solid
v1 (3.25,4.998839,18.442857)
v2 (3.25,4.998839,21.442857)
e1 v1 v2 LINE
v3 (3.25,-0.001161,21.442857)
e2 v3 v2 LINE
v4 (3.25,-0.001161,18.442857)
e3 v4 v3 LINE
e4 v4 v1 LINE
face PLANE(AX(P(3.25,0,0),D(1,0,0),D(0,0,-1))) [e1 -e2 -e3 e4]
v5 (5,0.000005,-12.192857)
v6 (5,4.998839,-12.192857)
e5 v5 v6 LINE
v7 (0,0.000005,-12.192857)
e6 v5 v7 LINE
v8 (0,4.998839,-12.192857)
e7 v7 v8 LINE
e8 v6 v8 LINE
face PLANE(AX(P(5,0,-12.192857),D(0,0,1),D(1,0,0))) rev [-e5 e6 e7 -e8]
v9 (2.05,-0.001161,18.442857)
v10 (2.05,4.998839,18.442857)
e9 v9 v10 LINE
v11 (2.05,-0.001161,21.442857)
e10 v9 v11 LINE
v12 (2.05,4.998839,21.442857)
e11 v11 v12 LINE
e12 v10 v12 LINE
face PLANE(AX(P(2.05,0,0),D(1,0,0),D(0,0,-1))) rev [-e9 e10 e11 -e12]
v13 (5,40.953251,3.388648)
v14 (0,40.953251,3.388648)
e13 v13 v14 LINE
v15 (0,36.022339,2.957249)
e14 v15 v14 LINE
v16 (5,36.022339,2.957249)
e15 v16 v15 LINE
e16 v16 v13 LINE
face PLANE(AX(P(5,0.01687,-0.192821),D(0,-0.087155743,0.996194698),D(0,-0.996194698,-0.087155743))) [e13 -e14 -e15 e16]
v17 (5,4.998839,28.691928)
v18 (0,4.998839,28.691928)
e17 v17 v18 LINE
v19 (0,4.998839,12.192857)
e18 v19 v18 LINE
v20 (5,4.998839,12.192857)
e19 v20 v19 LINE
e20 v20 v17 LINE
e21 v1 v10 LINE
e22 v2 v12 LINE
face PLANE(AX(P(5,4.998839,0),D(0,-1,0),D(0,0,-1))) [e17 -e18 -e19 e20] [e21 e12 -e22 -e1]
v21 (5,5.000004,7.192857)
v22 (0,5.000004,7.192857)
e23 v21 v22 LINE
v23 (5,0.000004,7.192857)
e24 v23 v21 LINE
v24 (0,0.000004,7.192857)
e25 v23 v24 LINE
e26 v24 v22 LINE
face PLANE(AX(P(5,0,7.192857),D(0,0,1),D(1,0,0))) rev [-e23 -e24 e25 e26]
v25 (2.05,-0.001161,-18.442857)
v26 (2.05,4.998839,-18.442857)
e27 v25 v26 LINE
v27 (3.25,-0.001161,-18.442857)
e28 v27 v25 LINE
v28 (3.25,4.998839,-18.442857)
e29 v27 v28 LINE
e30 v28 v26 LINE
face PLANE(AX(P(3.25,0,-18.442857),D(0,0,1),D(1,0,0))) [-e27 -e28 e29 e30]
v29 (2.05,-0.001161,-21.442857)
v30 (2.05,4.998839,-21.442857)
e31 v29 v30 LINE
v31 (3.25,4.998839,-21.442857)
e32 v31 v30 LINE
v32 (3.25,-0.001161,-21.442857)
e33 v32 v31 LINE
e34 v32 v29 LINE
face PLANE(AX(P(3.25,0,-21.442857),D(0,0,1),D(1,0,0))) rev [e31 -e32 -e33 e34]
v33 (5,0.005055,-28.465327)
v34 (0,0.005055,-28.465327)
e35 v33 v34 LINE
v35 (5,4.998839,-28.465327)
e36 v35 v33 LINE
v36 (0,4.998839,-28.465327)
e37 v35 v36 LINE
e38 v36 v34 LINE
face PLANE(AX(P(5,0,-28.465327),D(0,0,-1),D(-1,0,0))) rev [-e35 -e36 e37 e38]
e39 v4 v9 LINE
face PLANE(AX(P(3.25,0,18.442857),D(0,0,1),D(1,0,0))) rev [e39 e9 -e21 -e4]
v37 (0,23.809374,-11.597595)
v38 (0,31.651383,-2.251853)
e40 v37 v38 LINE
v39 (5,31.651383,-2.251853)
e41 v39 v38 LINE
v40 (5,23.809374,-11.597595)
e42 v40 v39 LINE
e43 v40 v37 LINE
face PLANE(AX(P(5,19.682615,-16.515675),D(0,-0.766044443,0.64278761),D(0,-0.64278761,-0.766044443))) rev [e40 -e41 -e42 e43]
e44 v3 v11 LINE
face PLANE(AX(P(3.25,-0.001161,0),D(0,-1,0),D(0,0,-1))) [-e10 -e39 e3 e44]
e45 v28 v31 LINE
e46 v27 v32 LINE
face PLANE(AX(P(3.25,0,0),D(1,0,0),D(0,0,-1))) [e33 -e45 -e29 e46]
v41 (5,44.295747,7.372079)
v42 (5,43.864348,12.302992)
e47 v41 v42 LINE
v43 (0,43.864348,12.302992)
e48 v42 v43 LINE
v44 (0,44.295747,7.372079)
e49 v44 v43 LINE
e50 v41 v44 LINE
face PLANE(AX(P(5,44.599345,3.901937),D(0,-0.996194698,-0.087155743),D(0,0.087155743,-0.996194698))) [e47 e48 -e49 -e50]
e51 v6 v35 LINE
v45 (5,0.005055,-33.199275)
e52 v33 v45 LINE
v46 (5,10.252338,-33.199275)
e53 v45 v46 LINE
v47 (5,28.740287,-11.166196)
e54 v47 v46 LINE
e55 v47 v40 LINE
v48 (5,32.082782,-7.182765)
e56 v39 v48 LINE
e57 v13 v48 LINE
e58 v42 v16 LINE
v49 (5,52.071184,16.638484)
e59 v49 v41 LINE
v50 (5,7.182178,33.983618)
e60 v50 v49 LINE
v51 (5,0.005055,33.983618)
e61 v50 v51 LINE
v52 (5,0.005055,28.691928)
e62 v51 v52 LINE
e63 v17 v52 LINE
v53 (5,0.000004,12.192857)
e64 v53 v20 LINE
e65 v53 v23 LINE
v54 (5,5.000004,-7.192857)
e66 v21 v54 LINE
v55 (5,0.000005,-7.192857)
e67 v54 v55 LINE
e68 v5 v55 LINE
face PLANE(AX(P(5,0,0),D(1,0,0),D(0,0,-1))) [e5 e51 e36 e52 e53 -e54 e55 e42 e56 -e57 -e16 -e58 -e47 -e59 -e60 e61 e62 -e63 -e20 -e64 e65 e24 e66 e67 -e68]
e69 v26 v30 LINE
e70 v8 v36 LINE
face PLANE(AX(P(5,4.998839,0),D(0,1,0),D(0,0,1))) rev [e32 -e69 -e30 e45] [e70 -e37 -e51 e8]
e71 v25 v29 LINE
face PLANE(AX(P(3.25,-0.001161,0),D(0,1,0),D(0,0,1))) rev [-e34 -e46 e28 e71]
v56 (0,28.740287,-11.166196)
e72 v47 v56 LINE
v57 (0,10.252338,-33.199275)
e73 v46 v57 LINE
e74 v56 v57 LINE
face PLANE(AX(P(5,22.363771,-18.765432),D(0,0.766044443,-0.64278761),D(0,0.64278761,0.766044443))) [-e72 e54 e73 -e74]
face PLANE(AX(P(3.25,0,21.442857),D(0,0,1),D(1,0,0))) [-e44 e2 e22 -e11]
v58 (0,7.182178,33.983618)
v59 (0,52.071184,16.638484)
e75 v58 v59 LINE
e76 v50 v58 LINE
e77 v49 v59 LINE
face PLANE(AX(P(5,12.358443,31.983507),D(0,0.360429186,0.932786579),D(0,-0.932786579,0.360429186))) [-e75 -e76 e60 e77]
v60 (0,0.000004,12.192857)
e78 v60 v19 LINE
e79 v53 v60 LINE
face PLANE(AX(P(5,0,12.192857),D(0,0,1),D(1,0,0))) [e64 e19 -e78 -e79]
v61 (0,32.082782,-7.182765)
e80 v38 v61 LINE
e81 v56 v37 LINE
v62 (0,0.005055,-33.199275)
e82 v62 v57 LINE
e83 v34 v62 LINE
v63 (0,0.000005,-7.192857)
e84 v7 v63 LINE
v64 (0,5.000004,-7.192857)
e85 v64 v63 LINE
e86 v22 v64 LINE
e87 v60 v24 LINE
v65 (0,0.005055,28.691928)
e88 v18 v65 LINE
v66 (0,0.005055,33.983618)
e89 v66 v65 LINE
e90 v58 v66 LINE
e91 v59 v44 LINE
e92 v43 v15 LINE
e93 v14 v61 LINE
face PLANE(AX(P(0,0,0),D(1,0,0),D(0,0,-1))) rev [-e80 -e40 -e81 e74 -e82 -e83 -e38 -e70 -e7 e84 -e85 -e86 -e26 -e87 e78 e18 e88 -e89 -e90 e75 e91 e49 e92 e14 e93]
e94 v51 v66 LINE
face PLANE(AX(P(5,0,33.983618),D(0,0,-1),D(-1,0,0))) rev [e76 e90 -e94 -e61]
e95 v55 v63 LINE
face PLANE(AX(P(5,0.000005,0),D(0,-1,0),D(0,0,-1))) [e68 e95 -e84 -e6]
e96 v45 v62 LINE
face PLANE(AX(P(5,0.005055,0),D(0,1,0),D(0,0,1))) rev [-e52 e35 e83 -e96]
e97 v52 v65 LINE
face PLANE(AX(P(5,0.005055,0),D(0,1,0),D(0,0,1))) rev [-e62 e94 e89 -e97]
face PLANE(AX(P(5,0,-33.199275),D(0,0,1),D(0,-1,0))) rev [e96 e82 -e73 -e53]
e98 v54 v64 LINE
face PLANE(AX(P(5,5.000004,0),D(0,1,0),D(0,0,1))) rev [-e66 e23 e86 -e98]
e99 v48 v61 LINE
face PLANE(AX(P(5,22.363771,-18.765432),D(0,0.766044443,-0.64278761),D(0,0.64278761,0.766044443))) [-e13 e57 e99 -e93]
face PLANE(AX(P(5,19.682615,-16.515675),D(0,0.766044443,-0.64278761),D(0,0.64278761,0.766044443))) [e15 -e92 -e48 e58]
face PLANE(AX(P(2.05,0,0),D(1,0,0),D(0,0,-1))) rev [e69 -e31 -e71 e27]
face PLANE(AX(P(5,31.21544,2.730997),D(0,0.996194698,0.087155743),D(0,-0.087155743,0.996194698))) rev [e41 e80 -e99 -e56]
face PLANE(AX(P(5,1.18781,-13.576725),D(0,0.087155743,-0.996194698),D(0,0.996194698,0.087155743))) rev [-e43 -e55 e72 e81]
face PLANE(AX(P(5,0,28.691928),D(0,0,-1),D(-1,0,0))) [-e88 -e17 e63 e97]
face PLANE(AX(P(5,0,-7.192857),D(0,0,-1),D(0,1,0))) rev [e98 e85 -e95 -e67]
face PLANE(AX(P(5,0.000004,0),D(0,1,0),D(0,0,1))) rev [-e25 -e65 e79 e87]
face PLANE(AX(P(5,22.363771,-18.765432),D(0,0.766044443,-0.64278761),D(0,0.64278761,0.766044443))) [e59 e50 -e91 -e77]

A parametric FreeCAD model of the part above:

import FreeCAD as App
import Part
import Sketcher

V = App.Vector
Q = App.Units.Quantity

doc = App.newDocument("Part")
body = doc.addObject("PartDesign::Body", "Body")

# Sketch on YZ plane
sketch1 = doc.addObject("Sketcher::SketchObject", "Sketch")
body.addObject(sketch1)
sketch1.AttachmentSupport = (doc.YZ_Plane, [""])
sketch1.MapMode = "FlatFace"
sketch1.addGeometry([
    Part.LineSegment(V(0.000005, -7.192857, 0), V(0.000005, -12.192857, 0)),  # 0
    Part.LineSegment(V(0.000005, -12.192857, 0), V(4.998839, -12.192857, 0)),  # 1
    Part.LineSegment(V(4.998839, -12.192857, 0), V(4.998839, -28.465327, 0)),  # 2
    Part.LineSegment(V(4.998839, -28.465327, 0), V(0.005055, -28.465327, 0)),  # 3
    Part.LineSegment(V(0.005055, -28.465327, 0), V(0.005055, -33.199275, 0)),  # 4
    Part.LineSegment(V(0.005055, -33.199275, 0), V(10.252338, -33.199275, 0)),  # 5
    Part.LineSegment(V(10.252338, -33.199275, 0), V(23.045412, -17.953083, 0)),  # 6
    Part.LineSegment(V(23.045412, -17.953083, 0), V(25.629519, -14.873465, 0)),  # 7
    Part.LineSegment(V(25.629519, -14.873465, 0), V(28.740287, -11.166196, 0)),  # 8
    Part.LineSegment(V(28.740287, -11.166196, 0), V(23.809374, -11.597595, 0)),  # 9
    Part.LineSegment(V(23.809374, -11.597595, 0), V(31.651383, -2.251853, 0)),  # 10
    Part.LineSegment(V(31.651383, -2.251853, 0), V(32.082782, -7.182765, 0)),  # 11
    Part.LineSegment(V(32.082782, -7.182765, 0), V(40.953251, 3.388648, 0)),  # 12
    Part.LineSegment(V(40.953251, 3.388648, 0), V(36.022339, 2.957249, 0)),  # 13
    Part.LineSegment(V(36.022339, 2.957249, 0), V(43.864348, 12.302992, 0)),  # 14
    Part.LineSegment(V(43.864348, 12.302992, 0), V(44.295747, 7.372079, 0)),  # 15
    Part.LineSegment(V(44.295747, 7.372079, 0), V(52.071184, 16.638484, 0)),  # 16
    Part.LineSegment(V(52.071184, 16.638484, 0), V(10.005055, 32.892857, 0)),  # 17
    Part.LineSegment(V(10.005055, 32.892857, 0), V(7.182178, 33.983618, 0)),  # 18
    Part.LineSegment(V(7.182178, 33.983618, 0), V(0.005055, 33.983618, 0)),  # 19
    Part.LineSegment(V(0.005055, 33.983618, 0), V(0.005055, 28.691928, 0)),  # 20
    Part.LineSegment(V(0.005055, 28.691928, 0), V(4.998839, 28.691928, 0)),  # 21
    Part.LineSegment(V(4.998839, 28.691928, 0), V(4.998839, 12.192857, 0)),  # 22
    Part.LineSegment(V(4.998839, 12.192857, 0), V(0.000004, 12.192857, 0)),  # 23
    Part.LineSegment(V(0.000004, 12.192857, 0), V(0.000004, 7.192857, 0)),  # 24
    Part.LineSegment(V(0.000004, 7.192857, 0), V(5.000004, 7.192857, 0)),  # 25
    Part.LineSegment(V(5.000004, 7.192857, 0), V(5.000004, -7.192857, 0)),  # 26
    Part.LineSegment(V(5.000004, -7.192857, 0), V(0.000005, -7.192857, 0)),  # 27
], False)
sketch1.addConstraint([
    Sketcher.Constraint("Coincident", 0, 2, 1, 1),
    Sketcher.Constraint("Coincident", 1, 2, 2, 1),
    Sketcher.Constraint("Coincident", 2, 2, 3, 1),
    Sketcher.Constraint("Coincident", 3, 2, 4, 1),
    Sketcher.Constraint("Coincident", 4, 2, 5, 1),
    Sketcher.Constraint("Coincident", 5, 2, 6, 1),
    Sketcher.Constraint("Coincident", 6, 2, 7, 1),
    Sketcher.Constraint("Coincident", 7, 2, 8, 1),
    Sketcher.Constraint("Coincident", 8, 2, 9, 1),
    Sketcher.Constraint("Coincident", 9, 2, 10, 1),
    Sketcher.Constraint("Coincident", 10, 2, 11, 1),
    Sketcher.Constraint("Coincident", 11, 2, 12, 1),
    Sketcher.Constraint("Coincident", 12, 2, 13, 1),
    Sketcher.Constraint("Coincident", 13, 2, 14, 1),
    Sketcher.Constraint("Coincident", 14, 2, 15, 1),
    Sketcher.Constraint("Coincident", 15, 2, 16, 1),
    Sketcher.Constraint("Coincident", 16, 2, 17, 1),
    Sketcher.Constraint("Coincident", 17, 2, 18, 1),
    Sketcher.Constraint("Coincident", 18, 2, 19, 1),
    Sketcher.Constraint("Coincident", 19, 2, 20, 1),
    Sketcher.Constraint("Coincident", 20, 2, 21, 1),
    Sketcher.Constraint("Coincident", 21, 2, 22, 1),
    Sketcher.Constraint("Coincident", 22, 2, 23, 1),
    Sketcher.Constraint("Coincident", 23, 2, 24, 1),
    Sketcher.Constraint("Coincident", 24, 2, 25, 1),
    Sketcher.Constraint("Coincident", 25, 2, 26, 1),
    Sketcher.Constraint("Coincident", 26, 2, 27, 1),
    Sketcher.Constraint("Coincident", 27, 2, 0, 1),
    Sketcher.Constraint("Vertical", 0),
    Sketcher.Constraint("Horizontal", 1),
    Sketcher.Constraint("Vertical", 2),
    Sketcher.Constraint("Horizontal", 3),
    Sketcher.Constraint("Vertical", 4),
    Sketcher.Constraint("Horizontal", 5),
    Sketcher.Constraint("Horizontal", 19),
    Sketcher.Constraint("Vertical", 20),
    Sketcher.Constraint("Horizontal", 21),
    Sketcher.Constraint("Vertical", 22),
    Sketcher.Constraint("Horizontal", 23),
    Sketcher.Constraint("Vertical", 24),
    Sketcher.Constraint("Horizontal", 25),
    Sketcher.Constraint("Vertical", 26),
    Sketcher.Constraint("Horizontal", 27),
    Sketcher.Constraint("Symmetric", 0, 2, 23, 2, -1, 1),
    Sketcher.Constraint("Symmetric", 24, 2, 27, 2, -1),
    Sketcher.Constraint("Parallel", 6, 7),
    Sketcher.Constraint("Parallel", 7, 8),
    Sketcher.Constraint("Parallel", 8, 10),
    Sketcher.Constraint("Perpendicular", 9, 11),
    Sketcher.Constraint("Parallel", 10, 12),
    Sketcher.Constraint("Perpendicular", 11, 13),
    Sketcher.Constraint("Parallel", 12, 14),
    Sketcher.Constraint("Perpendicular", 13, 15),
    Sketcher.Constraint("Parallel", 14, 16),
    Sketcher.Constraint("Parallel", 17, 18),
    Sketcher.Constraint("Vertical", 4, 2, 19, 2),
    Sketcher.Constraint("Vertical", 2, 2, 21, 2),
    Sketcher.Constraint("Equal", 27, 0),
    Sketcher.Constraint("Equal", 9, 11),
    Sketcher.Constraint("Equal", 11, 13),
    Sketcher.Constraint("Equal", 10, 14),
    Sketcher.Constraint("Equal", 13, 15),
    Sketcher.Constraint("DistanceX", 25, 1, 25, 2, 5.0),
    Sketcher.Constraint("Angle", 6, Q("50 deg")),
    Sketcher.Constraint("Angle", 9, Q("-175 deg")),
    Sketcher.Constraint("DistanceX", 19, 2, 17, 2, 10.0),
    Sketcher.Constraint("Distance", 10, 12.2),
    Sketcher.Constraint("Distance", 12, 13.8),
    Sketcher.Constraint("DistanceY", 22, 2, 17, 2, 20.7),
    Sketcher.Constraint("DistanceY", 2, 2, 2, 1, 16.27247),
    Sketcher.Constraint("DistanceY", 20, 2, 20, 1, 5.291691),
    Sketcher.Constraint("DistanceY", 22, 2, 22, 1, 16.499071),
    Sketcher.Constraint("DistanceX", 2, 2, 5, 2, 5.2535),
    Sketcher.Constraint("DistanceY", 9, 2, 8, 2, 0.431399),
    Sketcher.Constraint("DistanceY", 7, 2, 11, 2, 7.6907),
    Sketcher.Constraint("DistanceX", 10, 2, 16, 2, 20.419801),
    Sketcher.Constraint("DistanceX", 21, 2, 13, 2, 31.0235),
    Sketcher.Constraint("Distance", 6, 19.90249),
    Sketcher.Constraint("Distance", 17, 45.097271),
    Sketcher.Constraint("DistanceX", 1, 1, 1, 2, 4.998834),
    Sketcher.Constraint("DistanceX", 3, 2, 3, 1, 4.993784),
    Sketcher.Constraint("DistanceY", 4, 2, 4, 1, 4.733948),
])
pad1 = doc.addObject("PartDesign::Pad", "Pad")
body.addObject(pad1)
pad1.Profile = sketch1
pad1.Length = 5

# Sketch on YZ plane
sketch2 = doc.addObject("Sketcher::SketchObject", "Sketch001")
body.addObject(sketch2)
sketch2.AttachmentSupport = (doc.YZ_Plane, [""])
sketch2.MapMode = "FlatFace"
sketch2.AttachmentOffset = App.Placement(V(0, 0, 2.05), App.Rotation())
sketch2.addGeometry([
    Part.LineSegment(V(4.998839, -18.442857, 0), V(-0.001161, -18.442857, 0)),  # 0
    Part.LineSegment(V(-0.001161, -18.442857, 0), V(-0.001161, -21.442857, 0)),  # 1
    Part.LineSegment(V(-0.001161, -21.442857, 0), V(4.998839, -21.442857, 0)),  # 2
    Part.LineSegment(V(4.998839, -21.442857, 0), V(4.998839, -18.442857, 0)),  # 3
    Part.LineSegment(V(4.998839, 21.442857, 0), V(-0.001161, 21.442857, 0)),  # 4
    Part.LineSegment(V(-0.001161, 21.442857, 0), V(-0.001161, 18.442857, 0)),  # 5
    Part.LineSegment(V(-0.001161, 18.442857, 0), V(4.998839, 18.442857, 0)),  # 6
    Part.LineSegment(V(4.998839, 18.442857, 0), V(4.998839, 21.442857, 0)),  # 7
], False)
sketch2.addConstraint([
    Sketcher.Constraint("Coincident", 0, 2, 1, 1),
    Sketcher.Constraint("Coincident", 1, 2, 2, 1),
    Sketcher.Constraint("Coincident", 2, 2, 3, 1),
    Sketcher.Constraint("Coincident", 3, 2, 0, 1),
    Sketcher.Constraint("Coincident", 4, 2, 5, 1),
    Sketcher.Constraint("Coincident", 5, 2, 6, 1),
    Sketcher.Constraint("Coincident", 6, 2, 7, 1),
    Sketcher.Constraint("Coincident", 7, 2, 4, 1),
    Sketcher.Constraint("Horizontal", 0),
    Sketcher.Constraint("Vertical", 1),
    Sketcher.Constraint("Horizontal", 2),
    Sketcher.Constraint("Vertical", 3),
    Sketcher.Constraint("Horizontal", 4),
    Sketcher.Constraint("Vertical", 5),
    Sketcher.Constraint("Horizontal", 6),
    Sketcher.Constraint("Vertical", 7),
    Sketcher.Constraint("Symmetric", 1, 2, 4, 2, -1),
    Sketcher.Constraint("Symmetric", 3, 2, 6, 2, -1),
    Sketcher.Constraint("DistanceX", 0, 2, 0, 1, 5.0),
    Sketcher.Constraint("DistanceY", 1, 2, 1, 1, 3.0),
    Sketcher.Constraint("DistanceX", 0, 2, -1, 1, 0.001161),
    Sketcher.Constraint("DistanceY", 0, 2, -1, 1, 18.442857),
])
pad2 = doc.addObject("PartDesign::Pad", "Pad001")
body.addObject(pad2)
pad2.Profile = sketch2
pad2.Length = 1.2

doc.recompute()
